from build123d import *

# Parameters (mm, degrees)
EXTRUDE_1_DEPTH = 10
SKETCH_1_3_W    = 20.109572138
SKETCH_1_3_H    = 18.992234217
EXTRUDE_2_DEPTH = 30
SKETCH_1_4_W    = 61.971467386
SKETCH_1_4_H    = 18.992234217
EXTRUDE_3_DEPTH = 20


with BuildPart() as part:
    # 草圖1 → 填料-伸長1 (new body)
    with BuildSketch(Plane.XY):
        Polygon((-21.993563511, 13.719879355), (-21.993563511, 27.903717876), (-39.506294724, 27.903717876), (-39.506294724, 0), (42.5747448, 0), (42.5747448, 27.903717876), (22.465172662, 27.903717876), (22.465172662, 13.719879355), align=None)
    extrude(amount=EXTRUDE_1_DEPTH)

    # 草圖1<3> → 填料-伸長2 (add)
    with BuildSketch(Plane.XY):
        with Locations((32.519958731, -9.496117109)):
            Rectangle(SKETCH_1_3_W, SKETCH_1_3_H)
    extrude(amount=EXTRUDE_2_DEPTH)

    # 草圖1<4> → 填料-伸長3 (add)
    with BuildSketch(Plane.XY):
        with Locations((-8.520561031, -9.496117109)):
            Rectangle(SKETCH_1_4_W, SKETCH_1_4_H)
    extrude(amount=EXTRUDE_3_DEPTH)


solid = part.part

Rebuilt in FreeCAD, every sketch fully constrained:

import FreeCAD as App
import Part
import Sketcher

doc = App.newDocument("Part")
params = doc.addObject("Spreadsheet::Sheet", "Params")
for row, (alias, value) in enumerate([
    ("pad1_length", "10 mm"),
    ("pad2_length", "30 mm"),
    ("pad3_length", "20 mm"),
], start=1):
    params.set(f"A{row}", alias)
    params.set(f"B{row}", "=" + value)
    params.setAlias(f"B{row}", alias)

body = doc.addObject("PartDesign::Body", "Body")

# Sketch on XY plane
sketch1 = doc.addObject("Sketcher::SketchObject", "Sketch")
body.addObject(sketch1)
sketch1.AttachmentSupport = (doc.XY_Plane, [""])
sketch1.MapMode = "FlatFace"
sketch1.addGeometry([
    Part.LineSegment(App.Vector(-21.993564, 13.719879, 0), App.Vector(-21.993564, 27.903718, 0)),  # 0
    Part.LineSegment(App.Vector(-21.993564, 27.903718, 0), App.Vector(-39.506295, 27.903718, 0)),  # 1
    Part.LineSegment(App.Vector(-39.506295, 27.903718, 0), App.Vector(-39.506295, 0, 0)),  # 2
    Part.LineSegment(App.Vector(-39.506295, 0, 0), App.Vector(42.574745, 0, 0)),  # 3
    Part.LineSegment(App.Vector(42.574745, 0, 0), App.Vector(42.574745, 27.903718, 0)),  # 4
    Part.LineSegment(App.Vector(42.574745, 27.903718, 0), App.Vector(22.465173, 27.903718, 0)),  # 5
    Part.LineSegment(App.Vector(22.465173, 27.903718, 0), App.Vector(22.465173, 13.719879, 0)),  # 6
    Part.LineSegment(App.Vector(22.465173, 13.719879, 0), App.Vector(-21.993564, 13.719879, 0)),  # 7
], False)
sketch1.addConstraint([
    Sketcher.Constraint("Coincident", 0, 2, 1, 1),
    Sketcher.Constraint("Coincident", 1, 2, 2, 1),
    Sketcher.Constraint("Coincident", 2, 2, 3, 1),
    Sketcher.Constraint("Coincident", 3, 2, 4, 1),
    Sketcher.Constraint("Coincident", 4, 2, 5, 1),
    Sketcher.Constraint("Coincident", 5, 2, 6, 1),
    Sketcher.Constraint("Coincident", 6, 2, 7, 1),
    Sketcher.Constraint("Coincident", 7, 2, 0, 1),
    Sketcher.Constraint("Vertical", 0),
    Sketcher.Constraint("Horizontal", 1),
    Sketcher.Constraint("Vertical", 2),
    Sketcher.Constraint("Horizontal", 3),
    Sketcher.Constraint("Vertical", 4),
    Sketcher.Constraint("Horizontal", 5),
    Sketcher.Constraint("Vertical", 6),
    Sketcher.Constraint("Horizontal", 7),
    Sketcher.Constraint("PointOnObject", 2, 2, -1),
    Sketcher.Constraint("Horizontal", 1, 2, 4, 2),
    Sketcher.Constraint("DistanceX", 1, 2, 1, 1, 17.512731),
    Sketcher.Constraint("DistanceX", 3, 1, 3, 2, 82.08104),
    Sketcher.Constraint("DistanceY", 0, 1, 0, 2, 14.183839),
    Sketcher.Constraint("DistanceX", 5, 2, 5, 1, 20.109572),
    Sketcher.Constraint("DistanceY", 2, 2, 2, 1, 27.903718),
    Sketcher.Constraint("DistanceX", 0, 2, -1, 1, 21.993564),
])
pad1 = doc.addObject("PartDesign::Pad", "Pad")
body.addObject(pad1)
pad1.Profile = sketch1
pad1.setExpression("Length", "Params.pad1_length")

# Sketch on XY plane
sketch2 = doc.addObject("Sketcher::SketchObject", "Sketch001")
body.addObject(sketch2)
sketch2.AttachmentSupport = (doc.XY_Plane, [""])
sketch2.MapMode = "FlatFace"
sketch2.addGeometry([
    Part.LineSegment(App.Vector(22.465173, 0, 0), App.Vector(22.465173, -18.992234, 0)),
    Part.LineSegment(App.Vector(22.465173, -18.992234, 0), App.Vector(42.574745, -18.992234, 0)),
    Part.LineSegment(App.Vector(42.574745, -18.992234, 0), App.Vector(42.574745, 0, 0)),
    Part.LineSegment(App.Vector(42.574745, 0, 0), App.Vector(22.465173, 0, 0)),
], False)
sketch2.addConstraint([
    Sketcher.Constraint("Coincident", 0, 2, 1, 1),
    Sketcher.Constraint("Coincident", 1, 2, 2, 1),
    Sketcher.Constraint("Coincident", 2, 2, 3, 1),
    Sketcher.Constraint("Coincident", 3, 2, 0, 1),
    Sketcher.Constraint("Vertical", 0),
    Sketcher.Constraint("Horizontal", 1),
    Sketcher.Constraint("Vertical", 2),
    Sketcher.Constraint("Horizontal", 3),
    Sketcher.Constraint("PointOnObject", 2, 2, -1),
    Sketcher.Constraint("DistanceX", 1, 1, 1, 2, 20.109572),
    Sketcher.Constraint("DistanceY", 0, 2, 0, 1, 18.992234),
    Sketcher.Constraint("DistanceX", -1, 1, 0, 2, 22.465173),
])
pad2 = doc.addObject("PartDesign::Pad", "Pad001")
body.addObject(pad2)
pad2.Profile = sketch2
pad2.setExpression("Length", "Params.pad2_length")

# Sketch on XY plane
sketch3 = doc.addObject("Sketcher::SketchObject", "Sketch002")
body.addObject(sketch3)
sketch3.AttachmentSupport = (doc.XY_Plane, [""])
sketch3.MapMode = "FlatFace"
sketch3.addGeometry([
    Part.LineSegment(App.Vector(-39.506295, 0, 0), App.Vector(-39.506295, -18.992234, 0)),
    Part.LineSegment(App.Vector(-39.506295, -18.992234, 0), App.Vector(22.465173, -18.992234, 0)),
    Part.LineSegment(App.Vector(22.465173, -18.992234, 0), App.Vector(22.465173, 0, 0)),
    Part.LineSegment(App.Vector(22.465173, 0, 0), App.Vector(-39.506295, 0, 0)),
], False)
sketch3.addConstraint([
    Sketcher.Constraint("Coincident", 0, 2, 1, 1),
    Sketcher.Constraint("Coincident", 1, 2, 2, 1),
    Sketcher.Constraint("Coincident", 2, 2, 3, 1),
    Sketcher.Constraint("Coincident", 3, 2, 0, 1),
    Sketcher.Constraint("Vertical", 0),
    Sketcher.Constraint("Horizontal", 1),
    Sketcher.Constraint("Vertical", 2),
    Sketcher.Constraint("Horizontal", 3),
    Sketcher.Constraint("PointOnObject", 2, 2, -1),
    Sketcher.Constraint("DistanceX", 1, 1, 1, 2, 61.971467),
    Sketcher.Constraint("DistanceY", 0, 2, 0, 1, 18.992234),
    Sketcher.Constraint("DistanceX", 0, 2, -1, 1, 39.506295),
])
pad3 = doc.addObject("PartDesign::Pad", "Pad002")
body.addObject(pad3)
pad3.Profile = sketch3
pad3.setExpression("Length", "Params.pad3_length")

doc.recompute()
